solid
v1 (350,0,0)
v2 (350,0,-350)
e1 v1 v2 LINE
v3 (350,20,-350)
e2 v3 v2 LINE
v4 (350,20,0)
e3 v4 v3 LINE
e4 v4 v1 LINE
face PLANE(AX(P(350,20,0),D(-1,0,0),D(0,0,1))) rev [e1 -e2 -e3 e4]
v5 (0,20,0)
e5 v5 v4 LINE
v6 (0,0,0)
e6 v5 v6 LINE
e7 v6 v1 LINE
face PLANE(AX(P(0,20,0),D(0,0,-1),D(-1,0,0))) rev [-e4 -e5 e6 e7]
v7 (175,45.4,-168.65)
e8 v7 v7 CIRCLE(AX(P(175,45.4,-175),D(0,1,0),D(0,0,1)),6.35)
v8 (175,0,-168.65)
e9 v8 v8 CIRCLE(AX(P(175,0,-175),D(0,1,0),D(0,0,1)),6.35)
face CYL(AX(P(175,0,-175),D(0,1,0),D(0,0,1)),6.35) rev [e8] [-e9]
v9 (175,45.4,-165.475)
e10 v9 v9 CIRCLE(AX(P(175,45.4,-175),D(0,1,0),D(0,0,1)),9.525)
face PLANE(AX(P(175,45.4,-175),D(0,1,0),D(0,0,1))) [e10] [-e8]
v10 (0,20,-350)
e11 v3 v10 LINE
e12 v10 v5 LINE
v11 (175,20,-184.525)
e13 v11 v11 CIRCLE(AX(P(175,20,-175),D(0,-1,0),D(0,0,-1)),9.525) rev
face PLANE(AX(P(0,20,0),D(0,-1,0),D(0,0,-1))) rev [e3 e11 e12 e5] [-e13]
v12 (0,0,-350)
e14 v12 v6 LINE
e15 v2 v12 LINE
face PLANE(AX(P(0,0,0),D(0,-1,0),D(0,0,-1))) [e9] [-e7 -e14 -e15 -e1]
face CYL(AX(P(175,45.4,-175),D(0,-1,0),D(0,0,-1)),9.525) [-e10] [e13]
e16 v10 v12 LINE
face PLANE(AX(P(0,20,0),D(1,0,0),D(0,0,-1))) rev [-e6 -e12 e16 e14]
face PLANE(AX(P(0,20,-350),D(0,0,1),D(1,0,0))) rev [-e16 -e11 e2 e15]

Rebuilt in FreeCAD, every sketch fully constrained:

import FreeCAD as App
import Part
import Sketcher
from FreeCAD import Vector
Q = App.Units.Quantity


def add_polygon(sketch, points):
    """Adds a closed chain of lines whose ends are joined by coincident constraints."""
    first, n = sketch.GeometryCount, len(points)
    for a, b in zip(points, points[1:] + points[:1]):
        sketch.addGeometry(Part.LineSegment(App.Vector(*a, 0), App.Vector(*b, 0)), False)
    for i in range(n):
        sketch.addConstraint(Sketcher.Constraint("Coincident", first + i, 2, first + (i + 1) % n, 1))

doc = App.newDocument("Part")
params = doc.addObject("Spreadsheet::Sheet", "Params")
for row, (alias, value) in enumerate([
    ("pad1_length", "20 mm"),
    ("sketch2_diameter", "0.5 in"),
    ("sketch3_diameter", "0.5 in"),
    ("sketch3_diameter2", "0.75 in"),
    ("pad2_length", "1 in"),
], start=1):
    params.set(f"A{row}", alias)
    params.set(f"B{row}", "=" + value)
    params.setAlias(f"B{row}", alias)

body = doc.addObject("PartDesign::Body", "Body")

# Sketch on XZ plane
sketch1 = body.newObject("Sketcher::SketchObject", "Sketch")
sketch1.AttachmentSupport = (doc.getObject("XZ_Plane"), [""])
sketch1.MapMode = "FlatFace"
add_polygon(sketch1, [(0, -350), (0, 0), (350, 0), (350, -350)])  # lines 0-3
sketch1.addConstraint([
    Sketcher.Constraint("Vertical", 0),
    Sketcher.Constraint("Horizontal", 1),
    Sketcher.Constraint("Vertical", 2),
    Sketcher.Constraint("Horizontal", 3),
    Sketcher.Constraint("Coincident", 0, 2, -1, 1),
    Sketcher.Constraint("Equal", 3, 0),
    Sketcher.Constraint("DistanceX", 1, 1, 1, 2, 350.0),
])
pad1 = body.newObject("PartDesign::Pad", "Pad")
pad1.Profile = sketch1
pad1.setExpression("Length", "Params.pad1_length")
pad1.Reversed = True

# Sketch on XZ plane
sketch2 = body.newObject("Sketcher::SketchObject", "Sketch001")
sketch2.AttachmentSupport = (doc.getObject("XZ_Plane"), [""])
sketch2.MapMode = "FlatFace"
sketch2.AttachmentOffset = App.Placement(Vector(0, 0, -20), App.Rotation())
sketch2.addGeometry(Part.Circle(Vector(175, -175, 0), Vector(0, 0, 1), 6), False)
sketch2.addConstraint([
    Sketcher.Constraint("Diameter", 0, Q("0.5 in")),
    Sketcher.Constraint("DistanceX", -1, 1, 0, 3, 175.0),
    Sketcher.Constraint("DistanceY", 0, 3, -1, 1, 175.0),
])
sketch2.setExpression("Constraints[0]", "Params.sketch2_diameter")
pocket1 = body.newObject("PartDesign::Pocket", "Pocket")
pocket1.Profile = sketch2
pocket1.Type = "ThroughAll"
pocket1.Reversed = True

# Sketch on XZ plane
sketch3 = body.newObject("Sketcher::SketchObject", "Sketch002")
sketch3.AttachmentSupport = (doc.getObject("XZ_Plane"), [""])
sketch3.MapMode = "FlatFace"
sketch3.AttachmentOffset = App.Placement(Vector(0, 0, -45.4), App.Rotation())
sketch3.addGeometry([
    Part.Circle(Vector(175, -175, 0), Vector(0, 0, 1), 10),
    Part.Circle(Vector(175, -175, 0), Vector(0, 0, 1), 6),
], False)
sketch3.addConstraint([
    Sketcher.Constraint("Coincident", 1, 3, 0, 3),
    Sketcher.Constraint("Diameter", 1, Q("0.5 in")),
    Sketcher.Constraint("Diameter", 0, Q("0.75 in")),
    Sketcher.Constraint("DistanceX", -1, 1, 0, 3, 175.0),
    Sketcher.Constraint("DistanceY", 0, 3, -1, 1, 175.0),
])
sketch3.setExpression("Constraints[1]", "Params.sketch3_diameter")
sketch3.setExpression("Constraints[2]", "Params.sketch3_diameter2")
pad2 = body.newObject("PartDesign::Pad", "Pad001")
pad2.Profile = sketch3
pad2.setExpression("Length", "Params.pad2_length")

doc.recompute()
